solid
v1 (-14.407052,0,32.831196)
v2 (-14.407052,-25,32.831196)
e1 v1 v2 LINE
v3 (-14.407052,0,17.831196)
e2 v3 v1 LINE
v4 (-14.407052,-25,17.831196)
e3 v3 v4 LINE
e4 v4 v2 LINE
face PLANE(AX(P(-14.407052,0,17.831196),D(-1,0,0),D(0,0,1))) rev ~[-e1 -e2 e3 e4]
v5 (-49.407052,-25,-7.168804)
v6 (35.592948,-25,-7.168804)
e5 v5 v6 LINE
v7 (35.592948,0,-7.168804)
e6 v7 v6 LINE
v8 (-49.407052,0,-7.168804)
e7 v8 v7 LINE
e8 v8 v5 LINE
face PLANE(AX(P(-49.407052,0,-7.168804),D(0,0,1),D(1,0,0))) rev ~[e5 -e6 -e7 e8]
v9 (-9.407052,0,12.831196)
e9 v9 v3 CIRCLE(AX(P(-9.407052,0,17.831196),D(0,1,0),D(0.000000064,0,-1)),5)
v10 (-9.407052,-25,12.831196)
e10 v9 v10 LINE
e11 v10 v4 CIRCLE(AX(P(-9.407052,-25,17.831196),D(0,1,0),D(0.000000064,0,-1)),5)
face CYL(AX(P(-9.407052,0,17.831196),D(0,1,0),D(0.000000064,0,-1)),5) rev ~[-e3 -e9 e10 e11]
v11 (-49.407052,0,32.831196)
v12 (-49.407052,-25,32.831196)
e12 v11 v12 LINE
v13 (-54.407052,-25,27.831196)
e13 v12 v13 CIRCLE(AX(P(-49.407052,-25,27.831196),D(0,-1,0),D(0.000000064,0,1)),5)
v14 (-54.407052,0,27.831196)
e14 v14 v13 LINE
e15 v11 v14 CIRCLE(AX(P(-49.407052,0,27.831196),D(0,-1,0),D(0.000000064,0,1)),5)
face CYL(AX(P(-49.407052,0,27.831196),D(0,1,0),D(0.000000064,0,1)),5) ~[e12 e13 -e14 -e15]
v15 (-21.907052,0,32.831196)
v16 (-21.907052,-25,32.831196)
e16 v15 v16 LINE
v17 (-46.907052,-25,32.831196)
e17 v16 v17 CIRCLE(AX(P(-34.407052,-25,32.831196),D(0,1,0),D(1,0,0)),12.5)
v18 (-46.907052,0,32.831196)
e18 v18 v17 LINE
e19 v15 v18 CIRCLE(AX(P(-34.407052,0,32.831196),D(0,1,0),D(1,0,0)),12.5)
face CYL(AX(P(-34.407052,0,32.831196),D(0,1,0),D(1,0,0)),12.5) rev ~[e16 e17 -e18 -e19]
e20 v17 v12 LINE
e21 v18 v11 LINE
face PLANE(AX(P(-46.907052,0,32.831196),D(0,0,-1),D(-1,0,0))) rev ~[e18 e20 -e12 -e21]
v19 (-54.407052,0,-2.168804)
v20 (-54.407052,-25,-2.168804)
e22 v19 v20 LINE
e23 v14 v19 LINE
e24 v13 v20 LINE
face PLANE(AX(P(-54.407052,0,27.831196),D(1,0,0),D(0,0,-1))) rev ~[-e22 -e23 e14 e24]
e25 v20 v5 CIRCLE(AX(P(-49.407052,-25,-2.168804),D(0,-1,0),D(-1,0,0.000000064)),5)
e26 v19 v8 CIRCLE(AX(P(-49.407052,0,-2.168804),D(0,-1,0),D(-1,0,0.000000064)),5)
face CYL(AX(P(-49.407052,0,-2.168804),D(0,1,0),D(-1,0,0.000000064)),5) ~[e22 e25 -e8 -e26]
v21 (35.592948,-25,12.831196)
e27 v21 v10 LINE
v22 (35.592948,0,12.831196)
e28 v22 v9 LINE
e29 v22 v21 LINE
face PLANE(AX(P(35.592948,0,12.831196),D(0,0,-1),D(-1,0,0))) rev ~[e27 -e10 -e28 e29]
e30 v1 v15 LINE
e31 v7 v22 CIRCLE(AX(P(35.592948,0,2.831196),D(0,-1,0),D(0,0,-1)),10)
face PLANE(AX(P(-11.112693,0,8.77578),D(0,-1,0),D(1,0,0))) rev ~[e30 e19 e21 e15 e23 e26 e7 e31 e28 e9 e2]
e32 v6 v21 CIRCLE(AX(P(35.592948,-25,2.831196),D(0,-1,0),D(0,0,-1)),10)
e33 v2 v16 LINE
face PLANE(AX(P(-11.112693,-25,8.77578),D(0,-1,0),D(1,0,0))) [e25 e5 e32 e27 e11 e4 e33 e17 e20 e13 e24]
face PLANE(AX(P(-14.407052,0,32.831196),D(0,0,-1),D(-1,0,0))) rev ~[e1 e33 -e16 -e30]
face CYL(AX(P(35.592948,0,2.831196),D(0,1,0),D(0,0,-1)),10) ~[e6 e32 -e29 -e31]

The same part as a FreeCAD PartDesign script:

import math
import FreeCAD as App
import Part
import Sketcher
Q = App.Units.Quantity

doc = App.newDocument("Part")
body = doc.addObject("PartDesign::Body", "Body")

# Sketch on XZ plane
sketch1 = body.newObject("Sketcher::SketchObject", "Sketch")
sketch1.AttachmentSupport = (doc.getObject("XZ_Plane"), [""])
sketch1.MapMode = "FlatFace"
sketch1.addGeometry([
    Part.LineSegment(App.Vector(-46.9, 32.8, 0), App.Vector(-49.4, 32.8, 0)),  # 0
    Part.ArcOfCircle(Part.Circle(App.Vector(-49.4, 27.8, 0), App.Vector(0, 0, 1), 5), math.radians(90), math.radians(180)),  # 1
    Part.LineSegment(App.Vector(-54.4, 27.8, 0), App.Vector(-54.4, -2.2, 0)),  # 2
    Part.ArcOfCircle(Part.Circle(App.Vector(-49.4, -2.2, 0), App.Vector(0, 0, 1), 5), math.radians(180), math.radians(270)),  # 3
    Part.LineSegment(App.Vector(-49.4, -7.2, 0), App.Vector(35.6, -7.2, 0)),  # 4
    Part.ArcOfCircle(Part.Circle(App.Vector(35.6, 2.8, 0), App.Vector(0, 0, 1), 10), math.radians(-90), math.radians(90)),  # 5
    Part.LineSegment(App.Vector(35.6, 12.8, 0), App.Vector(-9.4, 12.8, 0)),  # 6
    Part.ArcOfCircle(Part.Circle(App.Vector(-9.4, 17.8, 0), App.Vector(0, 0, 1), 5), math.radians(180), math.radians(270)),  # 7
    Part.LineSegment(App.Vector(-14.4, 17.8, 0), App.Vector(-14.4, 32.8, 0)),  # 8
    Part.LineSegment(App.Vector(-14.4, 32.8, 0), App.Vector(-21.9, 32.8, 0)),  # 9
    Part.ArcOfCircle(Part.Circle(App.Vector(-34.4, 32.8, 0), App.Vector(0, 0, 1), 12.5), math.radians(180), math.radians(360)),  # 10
], False)
sketch1.addConstraint([
    Sketcher.Constraint("Tangent", 0, 2, 1, 1),
    Sketcher.Constraint("Tangent", 1, 2, 2, 1),
    Sketcher.Constraint("Tangent", 2, 2, 3, 1),
    Sketcher.Constraint("Tangent", 3, 2, 4, 1),
    Sketcher.Constraint("Tangent", 4, 2, 5, 1),
    Sketcher.Constraint("Tangent", 5, 2, 6, 1),
    Sketcher.Constraint("Tangent", 6, 2, 7, 2),
    Sketcher.Constraint("Tangent", 7, 1, 8, 1),
    Sketcher.Constraint("Coincident", 8, 2, 9, 1),
    Sketcher.Constraint("Coincident", 9, 2, 10, 2),
    Sketcher.Constraint("Coincident", 10, 1, 0, 1),
    Sketcher.Constraint("Horizontal", 0),
    Sketcher.Constraint("Vertical", 2),
    Sketcher.Constraint("Horizontal", 4),
    Sketcher.Constraint("Horizontal", 6),
    Sketcher.Constraint("Vertical", 8),
    Sketcher.Constraint("Horizontal", 9),
    Sketcher.Constraint("Equal", 1, 3),
    Sketcher.Constraint("Equal", 3, 7),
    Sketcher.Constraint("Horizontal", 10, 3, 0, 2),
    Sketcher.Constraint("Horizontal", 0, 2, 8, 2),
    Sketcher.Constraint("Radius", 1, Q("5 mm")),
    Sketcher.Constraint("Radius", 5, Q("10 mm")),
    Sketcher.Constraint("Radius", 10, Q("12.5 mm")),
    Sketcher.Constraint("DistanceX", 4, 1, 4, 2, Q("85 mm")),
    Sketcher.Constraint("DistanceX", 6, 2, 6, 1, Q("45 mm")),
    Sketcher.Constraint("DistanceY", 2, 2, 2, 1, Q("30 mm")),
    Sketcher.Constraint("DistanceX", 0, 2, 0, 1, Q("2.5 mm")),
    Sketcher.Constraint("DistanceX", 1, 2, -1, 1, Q("54.407052 mm")),
    Sketcher.Constraint("DistanceY", -1, 1, 1, 3, Q("27.831196 mm")),
])
pad1 = body.newObject("PartDesign::Pad", "Pad")
pad1.Profile = sketch1
pad1.Length = 25

doc.recompute()
